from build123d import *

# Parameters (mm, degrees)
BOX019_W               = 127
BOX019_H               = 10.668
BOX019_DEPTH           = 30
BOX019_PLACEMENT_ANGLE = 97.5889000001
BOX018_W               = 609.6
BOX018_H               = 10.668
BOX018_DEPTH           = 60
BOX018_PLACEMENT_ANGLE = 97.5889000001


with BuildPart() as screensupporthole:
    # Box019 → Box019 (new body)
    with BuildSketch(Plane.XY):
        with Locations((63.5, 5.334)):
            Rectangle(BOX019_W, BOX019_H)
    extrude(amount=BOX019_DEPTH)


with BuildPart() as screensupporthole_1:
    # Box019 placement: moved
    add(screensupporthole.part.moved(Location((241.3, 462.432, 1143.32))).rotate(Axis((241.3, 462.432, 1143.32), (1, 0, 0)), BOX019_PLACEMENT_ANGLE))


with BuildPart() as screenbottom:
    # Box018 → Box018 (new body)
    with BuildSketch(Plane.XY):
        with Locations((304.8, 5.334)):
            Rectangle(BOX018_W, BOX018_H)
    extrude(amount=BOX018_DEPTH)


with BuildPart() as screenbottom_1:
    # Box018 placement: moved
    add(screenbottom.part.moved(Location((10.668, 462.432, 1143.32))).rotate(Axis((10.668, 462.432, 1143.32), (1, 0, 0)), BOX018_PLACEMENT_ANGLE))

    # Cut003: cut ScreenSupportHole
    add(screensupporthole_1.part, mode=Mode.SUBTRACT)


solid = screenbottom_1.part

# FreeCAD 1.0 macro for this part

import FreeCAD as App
import Part
import Sketcher
Q = App.Units.Quantity

doc = App.newDocument("Part")
body = doc.addObject("PartDesign::Body", "Body")

# Sketch on XY plane
sketch1 = body.newObject("Sketcher::SketchObject", "Sketch")
sketch1.AttachmentSupport = (doc.getObject("XY_Plane"), [""])
sketch1.MapMode = "FlatFace"
sketch1.addGeometry(Part.LineSegment(App.Vector(0, 10.668, 0), App.Vector(0, 0, 0)), False)
sketch1.addGeometry(Part.LineSegment(App.Vector(0, 0, 0), App.Vector(127, 0, 0)), False)
sketch1.addGeometry(Part.LineSegment(App.Vector(127, 0, 0), App.Vector(127, 10.668, 0)), False)
sketch1.addGeometry(Part.LineSegment(App.Vector(127, 10.668, 0), App.Vector(0, 10.668, 0)), False)
sketch1.addConstraint(Sketcher.Constraint("Coincident", 0, 2, 1, 1))
sketch1.addConstraint(Sketcher.Constraint("Coincident", 1, 2, 2, 1))
sketch1.addConstraint(Sketcher.Constraint("Coincident", 2, 2, 3, 1))
sketch1.addConstraint(Sketcher.Constraint("Coincident", 3, 2, 0, 1))
sketch1.addConstraint(Sketcher.Constraint("Vertical", 0))
sketch1.addConstraint(Sketcher.Constraint("Horizontal", 1))
sketch1.addConstraint(Sketcher.Constraint("Vertical", 2))
sketch1.addConstraint(Sketcher.Constraint("Horizontal", 3))
sketch1.addConstraint(Sketcher.Constraint("Coincident", 0, 2, -1, 1))
sketch1.addConstraint(Sketcher.Constraint("DistanceX", 1, 1, 1, 2, Q("5 in")))
sketch1.addConstraint(Sketcher.Constraint("DistanceY", 0, 2, 0, 1, Q("0.42 in")))
pad1 = body.newObject("PartDesign::Pad", "Pad")
pad1.Profile = sketch1
pad1.Length = 30
body2 = doc.addObject("PartDesign::Body", "Body001")
doc.recompute()

body.Placement = App.Placement(App.Vector(241.3, 462.432, 1143.32), App.Rotation(App.Vector(1, 0, 0), 97.5889))
boolean = body2.newObject("PartDesign::Boolean", "Boolean")
boolean.Type = "Fuse"
boolean.addObjects([body])
body3 = doc.addObject("PartDesign::Body", "Body002")

# Sketch on XY plane
sketch2 = body3.newObject("Sketcher::SketchObject", "Sketch001")
sketch2.AttachmentSupport = (doc.getObject("XY_Plane002"), [""])
sketch2.MapMode = "FlatFace"
sketch2.addGeometry(Part.LineSegment(App.Vector(0, 10.668, 0), App.Vector(0, 0, 0)), False)
sketch2.addGeometry(Part.LineSegment(App.Vector(0, 0, 0), App.Vector(609.6, 0, 0)), False)
sketch2.addGeometry(Part.LineSegment(App.Vector(609.6, 0, 0), App.Vector(609.6, 10.668, 0)), False)
sketch2.addGeometry(Part.LineSegment(App.Vector(609.6, 10.668, 0), App.Vector(0, 10.668, 0)), False)
sketch2.addConstraint(Sketcher.Constraint("Coincident", 0, 2, 1, 1))
sketch2.addConstraint(Sketcher.Constraint("Coincident", 1, 2, 2, 1))
sketch2.addConstraint(Sketcher.Constraint("Coincident", 2, 2, 3, 1))
sketch2.addConstraint(Sketcher.Constraint("Coincident", 3, 2, 0, 1))
sketch2.addConstraint(Sketcher.Constraint("Vertical", 0))
sketch2.addConstraint(Sketcher.Constraint("Horizontal", 1))
sketch2.addConstraint(Sketcher.Constraint("Vertical", 2))
sketch2.addConstraint(Sketcher.Constraint("Horizontal", 3))
sketch2.addConstraint(Sketcher.Constraint("Coincident", 0, 2, -1, 1))
sketch2.addConstraint(Sketcher.Constraint("DistanceX", 1, 1, 1, 2, Q("24 in")))
sketch2.addConstraint(Sketcher.Constraint("DistanceY", 0, 2, 0, 1, Q("0.42 in")))
pad2 = body3.newObject("PartDesign::Pad", "Pad001")
pad2.Profile = sketch2
pad2.Length = 60
body4 = doc.addObject("PartDesign::Body", "Body003")
doc.recompute()

body3.Placement = App.Placement(App.Vector(10.668, 462.432, 1143.32), App.Rotation(App.Vector(1, 0, 0), 97.5889))
boolean2 = body4.newObject("PartDesign::Boolean", "Boolean001")
boolean2.Type = "Fuse"
boolean2.addObjects([body3])
doc.recompute()

boolean3 = body4.newObject("PartDesign::Boolean", "Boolean002")
boolean3.Type = "Cut"
boolean3.addObjects([body2])

doc.recompute()
